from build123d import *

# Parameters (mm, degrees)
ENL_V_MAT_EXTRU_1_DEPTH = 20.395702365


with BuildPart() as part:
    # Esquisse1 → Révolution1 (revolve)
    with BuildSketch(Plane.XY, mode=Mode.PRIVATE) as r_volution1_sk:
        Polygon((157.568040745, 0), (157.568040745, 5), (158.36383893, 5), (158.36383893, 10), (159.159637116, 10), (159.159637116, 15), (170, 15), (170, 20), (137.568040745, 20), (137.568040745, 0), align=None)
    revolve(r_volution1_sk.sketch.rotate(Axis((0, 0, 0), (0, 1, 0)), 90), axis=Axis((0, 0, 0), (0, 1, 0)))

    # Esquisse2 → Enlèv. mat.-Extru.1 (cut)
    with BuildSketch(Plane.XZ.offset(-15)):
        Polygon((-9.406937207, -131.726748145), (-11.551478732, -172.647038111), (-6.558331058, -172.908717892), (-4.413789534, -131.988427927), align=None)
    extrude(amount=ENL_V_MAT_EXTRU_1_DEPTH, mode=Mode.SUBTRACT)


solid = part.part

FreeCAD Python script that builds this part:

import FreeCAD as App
import Part
import Sketcher

V = App.Vector
Q = App.Units.Quantity

doc = App.newDocument("Part")
params = doc.addObject("Spreadsheet::Sheet", "Params")
for row, (alias, value) in enumerate([
    ("sketch1_width", "20 mm"),
    ("revolution_angle", "360 deg"),
    ("sketch2_length", "5 mm"),
    ("pocket1_length", "20.395702 mm"),
], start=1):
    params.set(f"A{row}", alias)
    params.set(f"B{row}", "=" + value)
    params.setAlias(f"B{row}", alias)

body = doc.addObject("PartDesign::Body", "Body")

sketch1 = doc.addObject("Sketcher::SketchObject", "Sketch")
body.addObject(sketch1)
sketch1.AttachmentSupport = (doc.XY_Plane, [""])
sketch1.MapMode = "FlatFace"
sketch1.addGeometry([
    Part.LineSegment(V(157.6, 0, 0), V(157.6, 5, 0)),
    Part.LineSegment(V(157.6, 5, 0), V(158.4, 5, 0)),
    Part.LineSegment(V(158.4, 5, 0), V(158.4, 10, 0)),
    Part.LineSegment(V(158.4, 10, 0), V(159.2, 10, 0)),
    Part.LineSegment(V(159.2, 10, 0), V(159.2, 15, 0)),
    Part.LineSegment(V(159.2, 15, 0), V(170, 15, 0)),
    Part.LineSegment(V(170, 15, 0), V(170, 20, 0)),
    Part.LineSegment(V(170, 20, 0), V(137.6, 20, 0)),
    Part.LineSegment(V(137.6, 20, 0), V(137.6, 0, 0)),
    Part.LineSegment(V(137.6, 0, 0), V(157.6, 0, 0)),
], False)
sketch1.addConstraint([
    Sketcher.Constraint("Coincident", 0, 2, 1, 1),
    Sketcher.Constraint("Coincident", 1, 2, 2, 1),
    Sketcher.Constraint("Coincident", 2, 2, 3, 1),
    Sketcher.Constraint("Coincident", 3, 2, 4, 1),
    Sketcher.Constraint("Coincident", 4, 2, 5, 1),
    Sketcher.Constraint("Coincident", 5, 2, 6, 1),
    Sketcher.Constraint("Coincident", 6, 2, 7, 1),
    Sketcher.Constraint("Coincident", 7, 2, 8, 1),
    Sketcher.Constraint("Coincident", 8, 2, 9, 1),
    Sketcher.Constraint("Coincident", 9, 2, 0, 1),
    Sketcher.Constraint("Vertical", 0),
    Sketcher.Constraint("Horizontal", 1),
    Sketcher.Constraint("Vertical", 2),
    Sketcher.Constraint("Horizontal", 3),
    Sketcher.Constraint("Vertical", 4),
    Sketcher.Constraint("Horizontal", 5),
    Sketcher.Constraint("Vertical", 6),
    Sketcher.Constraint("Horizontal", 7),
    Sketcher.Constraint("Vertical", 8),
    Sketcher.Constraint("Horizontal", 9),
    Sketcher.Constraint("PointOnObject", 8, 2, -1),
    Sketcher.Constraint("Equal", 1, 3),
    Sketcher.Constraint("Equal", 0, 2),
    Sketcher.Constraint("Equal", 2, 4),
    Sketcher.Constraint("Equal", 4, 6),
    Sketcher.Constraint("Equal", 9, 8),
    Sketcher.Constraint("DistanceX", 9, 1, 9, 2, Q("20 mm")),
    Sketcher.Constraint("DistanceX", -1, 1, 5, 2, Q("170 mm")),
    Sketcher.Constraint("DistanceX", 1, 1, 1, 2, Q("0.795798 mm")),
    Sketcher.Constraint("DistanceX", 7, 2, 7, 1, Q("32.431959 mm")),
])
sketch1.setExpression("Constraints[26]", "Params.sketch1_width")
revolution = doc.addObject("PartDesign::Revolution", "Revolution")
body.addObject(revolution)
revolution.Profile = sketch1
revolution.ReferenceAxis = (sketch1, ["V_Axis"])
revolution.setExpression("Angle", "Params.revolution_angle")

sketch2 = doc.addObject("Sketcher::SketchObject", "Sketch001")
body.addObject(sketch2)
sketch2.AttachmentSupport = (doc.XZ_Plane, [""])
sketch2.MapMode = "FlatFace"
sketch2.AttachmentOffset = App.Placement(V(0, 0, -15), App.Rotation())
sketch2.addGeometry([
    Part.LineSegment(V(-9.4, -131.7, 0), V(-11.6, -172.6, 0)),
    Part.LineSegment(V(-11.6, -172.6, 0), V(-6.6, -172.9, 0)),
    Part.LineSegment(V(-6.6, -172.9, 0), V(-4.4, -132, 0)),
    Part.LineSegment(V(-4.4, -132, 0), V(-9.4, -131.7, 0)),
], False)
sketch2.addConstraint([
    Sketcher.Constraint("Coincident", 0, 2, 1, 1),
    Sketcher.Constraint("Coincident", 1, 2, 2, 1),
    Sketcher.Constraint("Coincident", 2, 2, 3, 1),
    Sketcher.Constraint("Coincident", 3, 2, 0, 1),
    Sketcher.Constraint("Perpendicular", 0, 1),
    Sketcher.Constraint("Perpendicular", 1, 2),
    Sketcher.Constraint("Perpendicular", 2, 3),
    Sketcher.Constraint("Angle", 0, Q("-93 deg")),
    Sketcher.Constraint("Distance", 1, Q("5 mm")),
    Sketcher.Constraint("DistanceX", 0, 2, -1, 1, Q("11.551479 mm")),
    Sketcher.Constraint("DistanceY", 0, 2, -1, 1, Q("172.647038 mm")),
    Sketcher.Constraint("DistanceX", 2, 2, -1, 1, Q("4.41379 mm")),
])
sketch2.setExpression("Constraints[8]", "Params.sketch2_length")
pocket1 = doc.addObject("PartDesign::Pocket", "Pocket")
body.addObject(pocket1)
pocket1.Profile = sketch2
pocket1.setExpression("Length", "Params.pocket1_length")
pocket1.Reversed = True

doc.recompute()
